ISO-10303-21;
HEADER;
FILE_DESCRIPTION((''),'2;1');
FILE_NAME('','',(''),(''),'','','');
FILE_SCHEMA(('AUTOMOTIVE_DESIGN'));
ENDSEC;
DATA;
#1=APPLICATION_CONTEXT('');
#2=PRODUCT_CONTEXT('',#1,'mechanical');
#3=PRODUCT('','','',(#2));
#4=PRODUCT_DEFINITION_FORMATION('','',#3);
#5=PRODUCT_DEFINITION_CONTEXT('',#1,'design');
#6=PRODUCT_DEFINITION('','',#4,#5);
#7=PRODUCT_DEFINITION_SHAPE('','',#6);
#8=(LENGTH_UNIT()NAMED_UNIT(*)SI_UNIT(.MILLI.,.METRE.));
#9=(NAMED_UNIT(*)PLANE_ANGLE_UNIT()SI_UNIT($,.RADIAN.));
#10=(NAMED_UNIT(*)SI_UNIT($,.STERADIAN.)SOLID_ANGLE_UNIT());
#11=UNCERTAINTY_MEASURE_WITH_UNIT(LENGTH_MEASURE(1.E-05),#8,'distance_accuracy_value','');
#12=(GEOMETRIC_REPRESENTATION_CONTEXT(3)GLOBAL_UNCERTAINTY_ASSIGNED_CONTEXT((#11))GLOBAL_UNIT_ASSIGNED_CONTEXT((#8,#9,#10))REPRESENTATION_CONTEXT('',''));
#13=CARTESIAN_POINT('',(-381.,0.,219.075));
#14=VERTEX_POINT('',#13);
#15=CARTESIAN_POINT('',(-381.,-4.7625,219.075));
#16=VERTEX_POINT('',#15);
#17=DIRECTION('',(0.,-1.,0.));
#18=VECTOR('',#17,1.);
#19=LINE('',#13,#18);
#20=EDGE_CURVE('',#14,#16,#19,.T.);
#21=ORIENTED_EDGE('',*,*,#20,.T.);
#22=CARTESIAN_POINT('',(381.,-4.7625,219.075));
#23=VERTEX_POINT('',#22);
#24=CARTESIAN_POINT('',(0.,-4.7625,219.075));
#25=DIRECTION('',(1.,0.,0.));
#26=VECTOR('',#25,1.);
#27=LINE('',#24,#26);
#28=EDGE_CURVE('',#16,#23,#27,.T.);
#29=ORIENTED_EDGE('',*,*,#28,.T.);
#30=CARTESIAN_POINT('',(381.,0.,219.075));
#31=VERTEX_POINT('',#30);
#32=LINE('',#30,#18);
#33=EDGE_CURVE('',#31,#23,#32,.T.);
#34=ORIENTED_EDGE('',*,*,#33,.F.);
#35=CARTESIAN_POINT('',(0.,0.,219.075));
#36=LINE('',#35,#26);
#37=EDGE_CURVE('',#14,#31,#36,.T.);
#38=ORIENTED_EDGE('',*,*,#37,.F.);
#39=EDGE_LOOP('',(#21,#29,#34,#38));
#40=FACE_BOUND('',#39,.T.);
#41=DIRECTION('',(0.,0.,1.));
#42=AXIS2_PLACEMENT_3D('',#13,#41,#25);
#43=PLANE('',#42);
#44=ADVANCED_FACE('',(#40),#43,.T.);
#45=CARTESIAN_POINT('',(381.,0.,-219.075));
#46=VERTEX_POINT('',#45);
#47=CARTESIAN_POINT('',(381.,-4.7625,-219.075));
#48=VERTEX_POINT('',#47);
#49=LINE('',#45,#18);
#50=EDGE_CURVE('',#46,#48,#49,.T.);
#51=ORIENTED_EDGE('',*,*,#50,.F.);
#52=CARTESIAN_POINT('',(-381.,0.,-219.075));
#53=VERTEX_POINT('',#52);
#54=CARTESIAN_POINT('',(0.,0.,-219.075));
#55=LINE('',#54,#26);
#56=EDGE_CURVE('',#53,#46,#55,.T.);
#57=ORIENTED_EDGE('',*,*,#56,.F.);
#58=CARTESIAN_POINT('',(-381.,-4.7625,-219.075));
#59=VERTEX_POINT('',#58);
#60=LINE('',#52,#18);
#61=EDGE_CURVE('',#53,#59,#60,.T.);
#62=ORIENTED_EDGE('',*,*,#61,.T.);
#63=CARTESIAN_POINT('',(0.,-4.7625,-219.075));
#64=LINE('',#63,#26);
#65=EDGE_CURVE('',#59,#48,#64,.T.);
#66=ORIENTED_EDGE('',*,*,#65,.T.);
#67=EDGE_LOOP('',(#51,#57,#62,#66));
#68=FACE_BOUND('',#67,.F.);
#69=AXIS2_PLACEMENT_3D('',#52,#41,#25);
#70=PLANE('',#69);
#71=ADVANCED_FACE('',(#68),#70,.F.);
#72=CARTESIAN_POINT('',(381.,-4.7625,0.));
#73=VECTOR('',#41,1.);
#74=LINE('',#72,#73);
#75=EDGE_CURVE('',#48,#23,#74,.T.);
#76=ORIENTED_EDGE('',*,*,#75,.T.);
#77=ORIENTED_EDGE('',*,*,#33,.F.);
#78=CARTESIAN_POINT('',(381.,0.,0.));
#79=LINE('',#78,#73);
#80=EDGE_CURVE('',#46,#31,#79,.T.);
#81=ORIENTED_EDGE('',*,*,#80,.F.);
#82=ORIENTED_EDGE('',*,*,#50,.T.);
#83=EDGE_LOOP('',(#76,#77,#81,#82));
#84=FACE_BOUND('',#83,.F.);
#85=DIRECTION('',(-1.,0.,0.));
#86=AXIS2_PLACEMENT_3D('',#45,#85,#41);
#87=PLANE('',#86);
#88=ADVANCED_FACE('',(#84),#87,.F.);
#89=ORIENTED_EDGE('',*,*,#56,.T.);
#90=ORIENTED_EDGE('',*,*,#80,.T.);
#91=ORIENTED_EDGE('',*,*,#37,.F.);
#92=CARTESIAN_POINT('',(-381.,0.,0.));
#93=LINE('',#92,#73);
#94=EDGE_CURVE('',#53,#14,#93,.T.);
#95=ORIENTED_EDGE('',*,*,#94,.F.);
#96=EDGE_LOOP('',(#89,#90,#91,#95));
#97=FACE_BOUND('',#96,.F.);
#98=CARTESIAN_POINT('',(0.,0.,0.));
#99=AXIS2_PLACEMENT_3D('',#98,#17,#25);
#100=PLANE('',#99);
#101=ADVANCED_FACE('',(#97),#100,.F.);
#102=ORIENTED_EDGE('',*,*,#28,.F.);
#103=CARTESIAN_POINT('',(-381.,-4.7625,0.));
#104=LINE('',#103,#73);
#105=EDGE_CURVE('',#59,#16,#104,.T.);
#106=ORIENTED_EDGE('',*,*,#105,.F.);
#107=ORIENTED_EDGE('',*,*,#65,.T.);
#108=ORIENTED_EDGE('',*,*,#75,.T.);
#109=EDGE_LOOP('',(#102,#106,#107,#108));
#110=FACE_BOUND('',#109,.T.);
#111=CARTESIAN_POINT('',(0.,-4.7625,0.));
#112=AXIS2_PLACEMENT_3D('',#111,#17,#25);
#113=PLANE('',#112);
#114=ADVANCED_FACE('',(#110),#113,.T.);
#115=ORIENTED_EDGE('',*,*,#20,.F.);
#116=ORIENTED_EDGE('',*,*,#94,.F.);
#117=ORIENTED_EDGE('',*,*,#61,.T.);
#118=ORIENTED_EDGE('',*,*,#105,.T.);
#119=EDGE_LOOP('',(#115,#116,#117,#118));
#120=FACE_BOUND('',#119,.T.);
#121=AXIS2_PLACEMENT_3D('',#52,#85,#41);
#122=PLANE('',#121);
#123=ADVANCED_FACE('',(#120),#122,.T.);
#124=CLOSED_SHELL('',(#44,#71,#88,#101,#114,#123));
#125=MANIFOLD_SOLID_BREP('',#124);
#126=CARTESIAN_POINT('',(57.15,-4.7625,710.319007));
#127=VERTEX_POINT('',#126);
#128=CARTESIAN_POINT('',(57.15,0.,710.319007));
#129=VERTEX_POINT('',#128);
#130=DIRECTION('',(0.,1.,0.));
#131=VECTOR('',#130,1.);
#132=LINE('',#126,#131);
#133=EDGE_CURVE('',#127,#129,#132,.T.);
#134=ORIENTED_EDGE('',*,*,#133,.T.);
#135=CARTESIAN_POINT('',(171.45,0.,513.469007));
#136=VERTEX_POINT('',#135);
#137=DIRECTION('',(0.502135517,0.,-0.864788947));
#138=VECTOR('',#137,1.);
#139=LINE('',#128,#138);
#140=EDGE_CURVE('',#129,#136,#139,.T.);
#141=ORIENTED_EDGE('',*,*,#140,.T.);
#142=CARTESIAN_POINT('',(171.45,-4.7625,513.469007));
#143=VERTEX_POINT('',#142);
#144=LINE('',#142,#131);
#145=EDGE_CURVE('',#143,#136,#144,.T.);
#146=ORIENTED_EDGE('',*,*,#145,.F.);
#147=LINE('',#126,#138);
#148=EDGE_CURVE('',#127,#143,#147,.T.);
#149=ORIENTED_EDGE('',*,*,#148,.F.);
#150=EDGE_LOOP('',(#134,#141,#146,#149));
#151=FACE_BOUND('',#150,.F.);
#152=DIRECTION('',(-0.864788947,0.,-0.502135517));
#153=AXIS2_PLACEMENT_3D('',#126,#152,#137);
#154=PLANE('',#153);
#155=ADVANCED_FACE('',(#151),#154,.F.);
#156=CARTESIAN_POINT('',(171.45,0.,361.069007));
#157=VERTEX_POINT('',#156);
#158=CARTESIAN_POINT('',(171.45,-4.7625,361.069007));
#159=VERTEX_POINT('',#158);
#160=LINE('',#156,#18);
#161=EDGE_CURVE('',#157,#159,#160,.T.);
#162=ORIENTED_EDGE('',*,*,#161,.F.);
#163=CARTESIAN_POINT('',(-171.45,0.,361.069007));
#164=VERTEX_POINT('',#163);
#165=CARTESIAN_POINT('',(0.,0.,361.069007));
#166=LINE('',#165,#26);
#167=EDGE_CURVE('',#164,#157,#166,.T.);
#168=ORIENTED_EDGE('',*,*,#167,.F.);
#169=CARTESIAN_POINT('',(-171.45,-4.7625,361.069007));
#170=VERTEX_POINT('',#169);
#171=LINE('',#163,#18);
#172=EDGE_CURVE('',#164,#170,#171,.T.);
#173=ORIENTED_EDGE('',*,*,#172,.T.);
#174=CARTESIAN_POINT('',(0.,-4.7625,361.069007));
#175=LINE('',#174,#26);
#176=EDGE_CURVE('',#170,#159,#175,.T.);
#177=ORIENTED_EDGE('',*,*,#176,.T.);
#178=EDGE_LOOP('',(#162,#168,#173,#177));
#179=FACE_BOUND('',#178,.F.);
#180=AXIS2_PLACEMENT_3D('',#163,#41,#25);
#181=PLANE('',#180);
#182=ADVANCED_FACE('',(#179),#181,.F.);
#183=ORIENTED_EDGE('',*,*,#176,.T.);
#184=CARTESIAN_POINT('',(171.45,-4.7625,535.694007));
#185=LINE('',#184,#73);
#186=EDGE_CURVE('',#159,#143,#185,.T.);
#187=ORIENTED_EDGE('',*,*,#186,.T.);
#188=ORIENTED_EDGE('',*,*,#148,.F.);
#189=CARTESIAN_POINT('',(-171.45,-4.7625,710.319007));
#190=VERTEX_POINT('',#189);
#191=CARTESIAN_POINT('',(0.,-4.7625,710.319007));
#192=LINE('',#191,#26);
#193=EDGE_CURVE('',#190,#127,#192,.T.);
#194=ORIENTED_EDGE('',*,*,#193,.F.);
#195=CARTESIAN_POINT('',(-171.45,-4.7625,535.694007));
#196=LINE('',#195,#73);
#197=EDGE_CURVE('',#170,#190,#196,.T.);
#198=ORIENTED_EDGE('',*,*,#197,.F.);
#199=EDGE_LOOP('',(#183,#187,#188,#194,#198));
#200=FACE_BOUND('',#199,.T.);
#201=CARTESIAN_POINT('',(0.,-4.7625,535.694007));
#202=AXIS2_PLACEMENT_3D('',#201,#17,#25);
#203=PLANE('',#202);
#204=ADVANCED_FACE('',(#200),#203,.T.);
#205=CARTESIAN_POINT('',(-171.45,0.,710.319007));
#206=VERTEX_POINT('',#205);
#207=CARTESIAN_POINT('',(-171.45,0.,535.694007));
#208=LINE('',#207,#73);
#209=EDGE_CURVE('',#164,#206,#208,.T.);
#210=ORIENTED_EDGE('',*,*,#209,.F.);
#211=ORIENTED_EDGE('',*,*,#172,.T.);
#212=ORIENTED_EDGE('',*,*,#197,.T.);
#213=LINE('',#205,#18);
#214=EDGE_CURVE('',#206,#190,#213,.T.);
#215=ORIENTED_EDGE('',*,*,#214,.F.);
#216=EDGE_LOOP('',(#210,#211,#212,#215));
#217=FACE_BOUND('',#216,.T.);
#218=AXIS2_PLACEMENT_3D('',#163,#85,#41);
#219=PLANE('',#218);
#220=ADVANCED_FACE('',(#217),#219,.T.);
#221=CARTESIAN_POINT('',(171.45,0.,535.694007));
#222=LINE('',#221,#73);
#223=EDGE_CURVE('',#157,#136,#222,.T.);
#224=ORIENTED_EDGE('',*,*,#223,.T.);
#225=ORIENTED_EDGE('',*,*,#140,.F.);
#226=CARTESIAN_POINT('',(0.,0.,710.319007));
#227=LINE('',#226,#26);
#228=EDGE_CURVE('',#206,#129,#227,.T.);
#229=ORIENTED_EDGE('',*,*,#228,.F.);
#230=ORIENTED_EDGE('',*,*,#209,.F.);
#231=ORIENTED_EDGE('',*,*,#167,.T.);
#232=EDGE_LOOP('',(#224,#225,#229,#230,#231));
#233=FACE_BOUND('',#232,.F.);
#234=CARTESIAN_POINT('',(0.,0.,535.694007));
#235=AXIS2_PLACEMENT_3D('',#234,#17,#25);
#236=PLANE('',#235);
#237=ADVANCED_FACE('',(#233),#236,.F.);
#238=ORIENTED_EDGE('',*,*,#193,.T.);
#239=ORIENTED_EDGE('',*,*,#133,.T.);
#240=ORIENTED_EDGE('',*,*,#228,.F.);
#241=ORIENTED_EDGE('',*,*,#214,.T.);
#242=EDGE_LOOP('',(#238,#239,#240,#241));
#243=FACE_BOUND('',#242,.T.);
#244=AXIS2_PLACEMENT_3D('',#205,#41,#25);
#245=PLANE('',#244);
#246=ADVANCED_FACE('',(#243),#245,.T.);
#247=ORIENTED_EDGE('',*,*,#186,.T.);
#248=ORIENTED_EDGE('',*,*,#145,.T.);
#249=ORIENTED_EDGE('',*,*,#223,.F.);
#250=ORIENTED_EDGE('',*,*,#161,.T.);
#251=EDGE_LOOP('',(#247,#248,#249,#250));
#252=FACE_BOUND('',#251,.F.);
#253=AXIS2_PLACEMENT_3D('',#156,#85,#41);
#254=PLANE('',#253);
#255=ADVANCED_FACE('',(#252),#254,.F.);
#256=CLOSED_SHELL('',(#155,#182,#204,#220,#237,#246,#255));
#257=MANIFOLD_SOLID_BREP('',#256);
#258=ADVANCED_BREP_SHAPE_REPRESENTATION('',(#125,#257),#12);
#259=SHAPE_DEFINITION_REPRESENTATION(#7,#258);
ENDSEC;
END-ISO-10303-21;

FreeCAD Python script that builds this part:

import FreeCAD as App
import Part
import Sketcher
from FreeCAD import Vector
Q = App.Units.Quantity

doc = App.newDocument("Part")
body = doc.addObject("PartDesign::Body", "Body")

# Sketch on XZ plane
sketch1 = doc.addObject("Sketcher::SketchObject", "Sketch")
body.addObject(sketch1)
sketch1.AttachmentSupport = (doc.XZ_Plane, [""])
sketch1.MapMode = "FlatFace"
sketch1.addGeometry(Part.LineSegment(Vector(-381, 219, 0), Vector(-381, -219, 0)), False)
sketch1.addGeometry(Part.LineSegment(Vector(-381, -219, 0), Vector(381, -219, 0)), False)
sketch1.addGeometry(Part.LineSegment(Vector(381, -219, 0), Vector(381, 219, 0)), False)
sketch1.addGeometry(Part.LineSegment(Vector(381, 219, 0), Vector(-381, 219, 0)), False)
sketch1.addConstraint(Sketcher.Constraint("Coincident", 0, 2, 1, 1))
sketch1.addConstraint(Sketcher.Constraint("Coincident", 1, 2, 2, 1))
sketch1.addConstraint(Sketcher.Constraint("Coincident", 2, 2, 3, 1))
sketch1.addConstraint(Sketcher.Constraint("Coincident", 3, 2, 0, 1))
sketch1.addConstraint(Sketcher.Constraint("Vertical", 0))
sketch1.addConstraint(Sketcher.Constraint("Horizontal", 1))
sketch1.addConstraint(Sketcher.Constraint("Vertical", 2))
sketch1.addConstraint(Sketcher.Constraint("Horizontal", 3))
sketch1.addConstraint(Sketcher.Constraint("Symmetric", 0, 2, 2, 2, -1, 1))
sketch1.addConstraint(Sketcher.Constraint("DistanceX", 1, 1, 1, 2, Q("30 in")))
sketch1.addConstraint(Sketcher.Constraint("DistanceY", 0, 2, 0, 1, Q("17.25 in")))
pad1 = doc.addObject("PartDesign::Pad", "Pad")
body.addObject(pad1)
pad1.Profile = sketch1
pad1.Length = Q("0.1875 in")
body2 = doc.addObject("PartDesign::Body", "Body001")

# Sketch on XZ plane
sketch2 = doc.addObject("Sketcher::SketchObject", "Sketch001")
body2.addObject(sketch2)
sketch2.AttachmentSupport = (doc.getObject("XZ_Plane001"), [""])
sketch2.MapMode = "FlatFace"
sketch2.addGeometry(Part.LineSegment(Vector(-171, 710, 0), Vector(-171, 361, 0)), False)
sketch2.addGeometry(Part.LineSegment(Vector(-171, 361, 0), Vector(171, 361, 0)), False)
sketch2.addGeometry(Part.LineSegment(Vector(171, 361, 0), Vector(171, 710, 0)), False)
sketch2.addGeometry(Part.LineSegment(Vector(171, 710, 0), Vector(-171, 710, 0)), False)
sketch2.addConstraint(Sketcher.Constraint("Coincident", 0, 2, 1, 1))
sketch2.addConstraint(Sketcher.Constraint("Coincident", 1, 2, 2, 1))
sketch2.addConstraint(Sketcher.Constraint("Coincident", 2, 2, 3, 1))
sketch2.addConstraint(Sketcher.Constraint("Coincident", 3, 2, 0, 1))
sketch2.addConstraint(Sketcher.Constraint("Vertical", 0))
sketch2.addConstraint(Sketcher.Constraint("Horizontal", 1))
sketch2.addConstraint(Sketcher.Constraint("Vertical", 2))
sketch2.addConstraint(Sketcher.Constraint("Horizontal", 3))
sketch2.addConstraint(Sketcher.Constraint("DistanceX", 1, 1, 1, 2, Q("13.5 in")))
sketch2.addConstraint(Sketcher.Constraint("DistanceY", 0, 2, 0, 1, Q("13.75 in")))
sketch2.addConstraint(Sketcher.Constraint("DistanceX", 0, 2, -1, 1, Q("6.75 in")))
sketch2.addConstraint(Sketcher.Constraint("DistanceY", -1, 1, 0, 2, Q("361.069007 mm")))
pad2 = doc.addObject("PartDesign::Pad", "Pad001")
body2.addObject(pad2)
pad2.Profile = sketch2
pad2.Length = Q("0.1875 in")

# Sketch on XZ plane
sketch3 = doc.addObject("Sketcher::SketchObject", "Sketch002")
body2.addObject(sketch3)
sketch3.AttachmentSupport = (doc.getObject("XZ_Plane001"), [""])
sketch3.MapMode = "FlatFace"
sketch3.AttachmentOffset = App.Placement(Vector(0, 0, 0.1875 * 25.4), App.Rotation())
sketch3.addGeometry(Part.LineSegment(Vector(57, 710, 0), Vector(171, 513, 0)), False)
sketch3.addGeometry(Part.LineSegment(Vector(171, 513, 0), Vector(171, 710, 0)), False)
sketch3.addGeometry(Part.LineSegment(Vector(171, 710, 0), Vector(57, 710, 0)), False)
sketch3.addConstraint(Sketcher.Constraint("Coincident", 0, 2, 1, 1))
sketch3.addConstraint(Sketcher.Constraint("Coincident", 1, 2, 2, 1))
sketch3.addConstraint(Sketcher.Constraint("Coincident", 2, 2, 0, 1))
sketch3.addConstraint(Sketcher.Constraint("Vertical", 1))
sketch3.addConstraint(Sketcher.Constraint("Horizontal", 2))
sketch3.addConstraint(Sketcher.Constraint("DistanceX", 2, 2, 2, 1, Q("4.5 in")))
sketch3.addConstraint(Sketcher.Constraint("DistanceY", 1, 1, 1, 2, Q("7.75 in")))
sketch3.addConstraint(Sketcher.Constraint("DistanceX", -1, 1, 0, 2, Q("6.75 in")))
sketch3.addConstraint(Sketcher.Constraint("DistanceY", -1, 1, 0, 2, Q("513.469007 mm")))
pocket1 = doc.addObject("PartDesign::Pocket", "Pocket")
body2.addObject(pocket1)
pocket1.Profile = sketch3
pocket1.Type = "ThroughAll"

doc.recompute()
